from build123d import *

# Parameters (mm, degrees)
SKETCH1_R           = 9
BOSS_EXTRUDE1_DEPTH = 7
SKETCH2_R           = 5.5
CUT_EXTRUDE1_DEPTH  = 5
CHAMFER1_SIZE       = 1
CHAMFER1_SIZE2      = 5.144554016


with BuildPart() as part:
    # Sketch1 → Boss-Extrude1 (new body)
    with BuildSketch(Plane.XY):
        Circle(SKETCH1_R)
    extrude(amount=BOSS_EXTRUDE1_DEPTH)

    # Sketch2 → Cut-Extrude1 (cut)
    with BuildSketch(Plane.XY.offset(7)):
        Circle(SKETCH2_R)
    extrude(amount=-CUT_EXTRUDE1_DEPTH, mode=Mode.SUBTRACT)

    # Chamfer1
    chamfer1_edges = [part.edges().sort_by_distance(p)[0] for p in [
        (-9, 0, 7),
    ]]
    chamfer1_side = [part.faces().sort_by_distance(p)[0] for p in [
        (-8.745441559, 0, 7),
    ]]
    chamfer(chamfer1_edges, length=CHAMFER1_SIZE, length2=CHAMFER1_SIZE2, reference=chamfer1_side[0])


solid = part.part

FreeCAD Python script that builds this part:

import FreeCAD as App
import Part
import Sketcher
Q = App.Units.Quantity


def edges_at(feature, points):
    """Names of the edges that pass closest to the given points."""
    edges = feature.Shape.Edges
    near = lambda p: min(range(len(edges)), key=lambda i: edges[i].distToShape(Part.Vertex(*p))[0])
    return sorted({f"Edge{near(p) + 1}" for p in points})

doc = App.newDocument("Part")
body = doc.addObject("PartDesign::Body", "Body")

sketch1 = body.newObject("Sketcher::SketchObject", "Sketch")
sketch1.AttachmentSupport = (doc.getObject("XY_Plane"), [""])
sketch1.MapMode = "FlatFace"
sketch1.addGeometry(Part.Circle(App.Vector(0, 0, 0), App.Vector(0, 0, 1), 9), False)
sketch1.addConstraint(Sketcher.Constraint("Coincident", 0, 3, -1, 1))
sketch1.addConstraint(Sketcher.Constraint("Diameter", 0, Q("18 mm")))
pad1 = body.newObject("PartDesign::Pad", "Pad")
pad1.Profile = sketch1
pad1.Length = 7

sketch2 = body.newObject("Sketcher::SketchObject", "Sketch001")
sketch2.AttachmentSupport = (doc.getObject("XY_Plane"), [""])
sketch2.MapMode = "FlatFace"
sketch2.AttachmentOffset = App.Placement(App.Vector(0, 0, 7), App.Rotation())
sketch2.addGeometry(Part.Circle(App.Vector(0, 0, 0), App.Vector(0, 0, 1), 6), False)
sketch2.addConstraint(Sketcher.Constraint("Coincident", 0, 3, -1, 1))
sketch2.addConstraint(Sketcher.Constraint("Diameter", 0, Q("11 mm")))
pocket1 = body.newObject("PartDesign::Pocket", "Pocket")
pocket1.Profile = sketch2
pocket1.Length = 5
doc.recompute()

chamfer = body.newObject("PartDesign::Chamfer", "Chamfer")
chamfer.Base = (pocket1, edges_at(pocket1, [(-9, 0, 7)]))
chamfer.ChamferType = "Two distances"
chamfer.Size = 1
chamfer.Size2 = 5.144554
chamfer.FlipDirection = True

doc.recompute()
